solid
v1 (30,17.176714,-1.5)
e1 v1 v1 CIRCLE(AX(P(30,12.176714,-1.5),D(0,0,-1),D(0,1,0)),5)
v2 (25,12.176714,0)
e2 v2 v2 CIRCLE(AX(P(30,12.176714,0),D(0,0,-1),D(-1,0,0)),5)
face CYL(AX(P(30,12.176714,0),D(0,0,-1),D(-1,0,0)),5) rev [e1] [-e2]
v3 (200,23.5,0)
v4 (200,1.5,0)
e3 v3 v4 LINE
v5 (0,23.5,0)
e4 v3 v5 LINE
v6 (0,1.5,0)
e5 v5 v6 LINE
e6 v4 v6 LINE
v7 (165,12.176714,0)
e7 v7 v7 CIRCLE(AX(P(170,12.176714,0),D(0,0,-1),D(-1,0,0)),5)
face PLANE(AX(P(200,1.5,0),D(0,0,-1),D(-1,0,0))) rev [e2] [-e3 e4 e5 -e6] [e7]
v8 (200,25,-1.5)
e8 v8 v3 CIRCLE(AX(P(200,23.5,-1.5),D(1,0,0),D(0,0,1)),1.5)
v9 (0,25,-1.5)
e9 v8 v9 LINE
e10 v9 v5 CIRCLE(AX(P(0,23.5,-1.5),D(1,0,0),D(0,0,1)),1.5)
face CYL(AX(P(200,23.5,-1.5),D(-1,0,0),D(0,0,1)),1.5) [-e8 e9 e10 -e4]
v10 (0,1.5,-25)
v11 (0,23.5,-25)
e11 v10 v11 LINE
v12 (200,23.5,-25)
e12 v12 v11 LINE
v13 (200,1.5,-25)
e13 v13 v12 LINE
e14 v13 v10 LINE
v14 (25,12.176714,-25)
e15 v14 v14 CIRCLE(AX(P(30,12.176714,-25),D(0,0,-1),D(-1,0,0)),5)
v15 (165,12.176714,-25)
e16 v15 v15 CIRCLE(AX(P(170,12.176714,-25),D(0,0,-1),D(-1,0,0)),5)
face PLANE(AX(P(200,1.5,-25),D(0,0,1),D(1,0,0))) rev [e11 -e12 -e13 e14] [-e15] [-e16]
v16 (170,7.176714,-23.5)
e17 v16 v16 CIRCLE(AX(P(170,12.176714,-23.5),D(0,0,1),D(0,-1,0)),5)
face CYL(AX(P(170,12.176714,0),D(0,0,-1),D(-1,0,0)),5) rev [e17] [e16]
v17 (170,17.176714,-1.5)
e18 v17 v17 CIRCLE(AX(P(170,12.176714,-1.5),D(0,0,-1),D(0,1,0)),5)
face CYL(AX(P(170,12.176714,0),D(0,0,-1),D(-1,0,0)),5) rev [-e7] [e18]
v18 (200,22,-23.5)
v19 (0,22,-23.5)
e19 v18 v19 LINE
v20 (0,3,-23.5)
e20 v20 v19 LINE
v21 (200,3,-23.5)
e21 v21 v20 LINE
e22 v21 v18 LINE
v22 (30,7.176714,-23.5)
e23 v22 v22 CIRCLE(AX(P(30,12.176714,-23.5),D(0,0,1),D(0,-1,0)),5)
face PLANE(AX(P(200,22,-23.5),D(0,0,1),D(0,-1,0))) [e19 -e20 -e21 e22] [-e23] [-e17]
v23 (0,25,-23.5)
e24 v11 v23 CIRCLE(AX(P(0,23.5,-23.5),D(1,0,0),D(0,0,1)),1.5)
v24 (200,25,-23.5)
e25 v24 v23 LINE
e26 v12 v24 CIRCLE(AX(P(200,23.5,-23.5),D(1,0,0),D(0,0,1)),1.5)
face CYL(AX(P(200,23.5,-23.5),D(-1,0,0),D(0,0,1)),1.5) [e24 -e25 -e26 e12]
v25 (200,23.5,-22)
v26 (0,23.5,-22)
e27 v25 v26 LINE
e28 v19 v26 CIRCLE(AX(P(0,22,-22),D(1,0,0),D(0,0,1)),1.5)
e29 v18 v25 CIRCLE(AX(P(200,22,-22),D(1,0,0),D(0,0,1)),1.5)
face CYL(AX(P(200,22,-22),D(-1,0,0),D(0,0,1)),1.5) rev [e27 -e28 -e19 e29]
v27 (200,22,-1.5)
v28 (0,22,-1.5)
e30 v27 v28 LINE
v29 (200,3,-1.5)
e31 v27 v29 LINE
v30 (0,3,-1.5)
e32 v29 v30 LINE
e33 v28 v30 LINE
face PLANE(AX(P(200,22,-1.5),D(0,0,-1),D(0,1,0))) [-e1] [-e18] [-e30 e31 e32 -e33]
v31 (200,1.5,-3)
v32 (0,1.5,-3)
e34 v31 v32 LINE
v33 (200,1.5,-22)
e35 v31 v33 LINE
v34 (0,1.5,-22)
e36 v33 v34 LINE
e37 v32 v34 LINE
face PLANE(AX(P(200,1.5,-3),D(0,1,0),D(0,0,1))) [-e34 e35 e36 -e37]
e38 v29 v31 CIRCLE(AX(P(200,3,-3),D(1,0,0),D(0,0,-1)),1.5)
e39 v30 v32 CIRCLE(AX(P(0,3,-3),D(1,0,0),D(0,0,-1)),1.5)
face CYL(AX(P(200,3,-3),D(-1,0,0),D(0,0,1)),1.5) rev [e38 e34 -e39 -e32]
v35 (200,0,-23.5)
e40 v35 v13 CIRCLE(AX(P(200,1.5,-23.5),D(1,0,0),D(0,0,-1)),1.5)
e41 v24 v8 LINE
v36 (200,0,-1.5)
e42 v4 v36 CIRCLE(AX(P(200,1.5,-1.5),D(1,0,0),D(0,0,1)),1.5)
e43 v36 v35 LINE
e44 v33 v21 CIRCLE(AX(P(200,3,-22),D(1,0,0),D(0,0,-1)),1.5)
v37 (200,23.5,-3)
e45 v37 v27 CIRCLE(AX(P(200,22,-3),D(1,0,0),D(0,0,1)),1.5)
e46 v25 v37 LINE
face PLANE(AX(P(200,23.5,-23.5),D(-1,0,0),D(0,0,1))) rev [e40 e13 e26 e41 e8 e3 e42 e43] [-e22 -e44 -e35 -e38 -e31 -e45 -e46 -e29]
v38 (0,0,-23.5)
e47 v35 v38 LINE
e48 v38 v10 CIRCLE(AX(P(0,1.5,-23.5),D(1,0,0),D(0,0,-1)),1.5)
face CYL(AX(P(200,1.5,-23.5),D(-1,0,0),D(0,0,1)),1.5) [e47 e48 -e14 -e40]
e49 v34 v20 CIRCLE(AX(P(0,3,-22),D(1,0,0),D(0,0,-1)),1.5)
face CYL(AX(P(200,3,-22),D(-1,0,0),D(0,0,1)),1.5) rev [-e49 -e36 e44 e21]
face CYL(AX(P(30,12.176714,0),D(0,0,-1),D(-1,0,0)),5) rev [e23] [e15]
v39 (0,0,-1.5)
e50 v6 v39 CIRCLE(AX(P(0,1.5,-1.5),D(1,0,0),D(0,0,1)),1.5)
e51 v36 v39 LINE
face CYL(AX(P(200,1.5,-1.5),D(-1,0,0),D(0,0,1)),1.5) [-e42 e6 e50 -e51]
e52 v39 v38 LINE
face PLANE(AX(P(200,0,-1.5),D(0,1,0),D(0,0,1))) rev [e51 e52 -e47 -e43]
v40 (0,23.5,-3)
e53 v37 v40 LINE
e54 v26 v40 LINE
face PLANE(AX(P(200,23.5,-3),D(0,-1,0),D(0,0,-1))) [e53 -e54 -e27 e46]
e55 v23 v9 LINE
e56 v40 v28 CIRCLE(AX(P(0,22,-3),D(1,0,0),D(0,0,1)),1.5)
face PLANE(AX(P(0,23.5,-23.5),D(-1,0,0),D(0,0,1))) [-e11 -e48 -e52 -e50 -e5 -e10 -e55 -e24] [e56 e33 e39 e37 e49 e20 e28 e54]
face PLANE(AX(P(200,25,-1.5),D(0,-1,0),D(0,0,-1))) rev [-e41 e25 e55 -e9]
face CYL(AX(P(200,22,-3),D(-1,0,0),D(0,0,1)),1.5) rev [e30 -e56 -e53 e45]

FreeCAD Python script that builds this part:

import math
import FreeCAD as App
import Part
import Sketcher
from FreeCAD import Vector
Q = App.Units.Quantity

doc = App.newDocument("Part")
body = doc.addObject("PartDesign::Body", "Body")

sketch1 = body.newObject("Sketcher::SketchObject", "Sketch")
sketch1.AttachmentSupport = (doc.getObject("YZ_Plane"), [""])
sketch1.MapMode = "FlatFace"
sketch1.addGeometry(Part.LineSegment(Vector(0, -1.5, 0), Vector(0, -23.5, 0)), False)
sketch1.addGeometry(Part.ArcOfCircle(Part.Circle(Vector(1.5, -23.5, 0), Vector(0, 0, 1), 1.5), math.radians(180), math.radians(270)), False)
sketch1.addGeometry(Part.LineSegment(Vector(1.5, -25, 0), Vector(23.5, -25, 0)), False)
sketch1.addGeometry(Part.ArcOfCircle(Part.Circle(Vector(23.5, -23.5, 0), Vector(0, 0, 1), 1.5), math.radians(-90), math.radians(0)), False)
sketch1.addGeometry(Part.LineSegment(Vector(25, -23.5, 0), Vector(25, -1.5, 0)), False)
sketch1.addGeometry(Part.ArcOfCircle(Part.Circle(Vector(23.5, -1.5, 0), Vector(0, 0, 1), 1.5), math.radians(0), math.radians(90)), False)
sketch1.addGeometry(Part.LineSegment(Vector(23.5, 0, 0), Vector(1.5, 0, 0)), False)
sketch1.addGeometry(Part.ArcOfCircle(Part.Circle(Vector(1.5, -1.5, 0), Vector(0, 0, 1), 1.5), math.radians(90), math.radians(180)), False)
sketch1.addGeometry(Part.ArcOfCircle(Part.Circle(Vector(22, -3, 0), Vector(0, 0, 1), 1.5), math.radians(0), math.radians(90)), False)
sketch1.addGeometry(Part.LineSegment(Vector(23.5, -3, 0), Vector(23.5, -22, 0)), False)
sketch1.addGeometry(Part.ArcOfCircle(Part.Circle(Vector(22, -22, 0), Vector(0, 0, 1), 1.5), math.radians(-90), math.radians(0)), False)
sketch1.addGeometry(Part.LineSegment(Vector(22, -23.5, 0), Vector(3, -23.5, 0)), False)
sketch1.addGeometry(Part.ArcOfCircle(Part.Circle(Vector(3, -22, 0), Vector(0, 0, 1), 1.5), math.radians(180), math.radians(270)), False)
sketch1.addGeometry(Part.LineSegment(Vector(1.5, -22, 0), Vector(1.5, -3, 0)), False)
sketch1.addGeometry(Part.ArcOfCircle(Part.Circle(Vector(3, -3, 0), Vector(0, 0, 1), 1.5), math.radians(90), math.radians(180)), False)
sketch1.addGeometry(Part.LineSegment(Vector(3, -1.5, 0), Vector(22, -1.5, 0)), False)
sketch1.addConstraint(Sketcher.Constraint("Tangent", 0, 2, 1, 1))
sketch1.addConstraint(Sketcher.Constraint("Tangent", 1, 2, 2, 1))
sketch1.addConstraint(Sketcher.Constraint("Tangent", 2, 2, 3, 1))
sketch1.addConstraint(Sketcher.Constraint("Tangent", 3, 2, 4, 1))
sketch1.addConstraint(Sketcher.Constraint("Tangent", 4, 2, 5, 1))
sketch1.addConstraint(Sketcher.Constraint("Tangent", 5, 2, 6, 1))
sketch1.addConstraint(Sketcher.Constraint("Tangent", 6, 2, 7, 1))
sketch1.addConstraint(Sketcher.Constraint("Tangent", 7, 2, 0, 1))
sketch1.addConstraint(Sketcher.Constraint("Tangent", 8, 1, 9, 1))
sketch1.addConstraint(Sketcher.Constraint("Tangent", 9, 2, 10, 2))
sketch1.addConstraint(Sketcher.Constraint("Tangent", 10, 1, 11, 1))
sketch1.addConstraint(Sketcher.Constraint("Tangent", 11, 2, 12, 2))
sketch1.addConstraint(Sketcher.Constraint("Tangent", 12, 1, 13, 1))
sketch1.addConstraint(Sketcher.Constraint("Tangent", 13, 2, 14, 2))
sketch1.addConstraint(Sketcher.Constraint("Tangent", 14, 1, 15, 1))
sketch1.addConstraint(Sketcher.Constraint("Tangent", 15, 2, 8, 2))
sketch1.addConstraint(Sketcher.Constraint("Vertical", 0))
sketch1.addConstraint(Sketcher.Constraint("Horizontal", 2))
sketch1.addConstraint(Sketcher.Constraint("Vertical", 4))
sketch1.addConstraint(Sketcher.Constraint("Horizontal", 6))
sketch1.addConstraint(Sketcher.Constraint("Vertical", 9))
sketch1.addConstraint(Sketcher.Constraint("Horizontal", 11))
sketch1.addConstraint(Sketcher.Constraint("Vertical", 13))
sketch1.addConstraint(Sketcher.Constraint("Horizontal", 15))
sketch1.addConstraint(Sketcher.Constraint("Equal", 1, 3))
sketch1.addConstraint(Sketcher.Constraint("Equal", 3, 5))
sketch1.addConstraint(Sketcher.Constraint("Equal", 5, 7))
sketch1.addConstraint(Sketcher.Constraint("Equal", 7, 8))
sketch1.addConstraint(Sketcher.Constraint("Equal", 8, 10))
sketch1.addConstraint(Sketcher.Constraint("Equal", 10, 12))
sketch1.addConstraint(Sketcher.Constraint("Equal", 12, 14))
sketch1.addConstraint(Sketcher.Constraint("PointOnObject", 0, 2, -2))
sketch1.addConstraint(Sketcher.Constraint("PointOnObject", 5, 2, -1))
sketch1.addConstraint(Sketcher.Constraint("Horizontal", 3, 2, 10, 1))
sketch1.addConstraint(Sketcher.Constraint("Horizontal", 7, 2, 14, 1))
sketch1.addConstraint(Sketcher.Constraint("Vertical", 5, 2, 8, 1))
sketch1.addConstraint(Sketcher.Constraint("Vertical", 6, 2, 12, 1))
sketch1.addConstraint(Sketcher.Constraint("Equal", 6, 0))
sketch1.addConstraint(Sketcher.Constraint("Radius", 1, Q("1.5 mm")))
sketch1.addConstraint(Sketcher.Constraint("DistanceX", 2, 1, 2, 2, Q("22 mm")))
pad1 = body.newObject("PartDesign::Pad", "Pad")
pad1.Profile = sketch1
pad1.Length = 200

sketch2 = body.newObject("Sketcher::SketchObject", "Sketch001")
sketch2.AttachmentSupport = (doc.getObject("XY_Plane"), [""])
sketch2.MapMode = "FlatFace"
sketch2.AttachmentOffset = App.Placement(Vector(0, 0, -25), App.Rotation())
sketch2.addGeometry(Part.Circle(Vector(170, 12, 0), Vector(0, 0, 1), 5), False)
sketch2.addGeometry(Part.Circle(Vector(30, 12, 0), Vector(0, 0, 1), 5), False)
sketch2.addConstraint(Sketcher.Constraint("Equal", 0, 1))
sketch2.addConstraint(Sketcher.Constraint("Horizontal", 0, 3, 1, 3))
sketch2.addConstraint(Sketcher.Constraint("Diameter", 0, Q("10 mm")))
sketch2.addConstraint(Sketcher.Constraint("DistanceX", -1, 1, 0, 3, Q("170 mm")))
sketch2.addConstraint(Sketcher.Constraint("DistanceX", -1, 1, 1, 3, Q("30 mm")))
sketch2.addConstraint(Sketcher.Constraint("DistanceY", -1, 1, 0, 3, Q("12.176714 mm")))
pocket1 = body.newObject("PartDesign::Pocket", "Pocket")
pocket1.Profile = sketch2
pocket1.Type = "ThroughAll"
pocket1.Reversed = True

doc.recompute()
